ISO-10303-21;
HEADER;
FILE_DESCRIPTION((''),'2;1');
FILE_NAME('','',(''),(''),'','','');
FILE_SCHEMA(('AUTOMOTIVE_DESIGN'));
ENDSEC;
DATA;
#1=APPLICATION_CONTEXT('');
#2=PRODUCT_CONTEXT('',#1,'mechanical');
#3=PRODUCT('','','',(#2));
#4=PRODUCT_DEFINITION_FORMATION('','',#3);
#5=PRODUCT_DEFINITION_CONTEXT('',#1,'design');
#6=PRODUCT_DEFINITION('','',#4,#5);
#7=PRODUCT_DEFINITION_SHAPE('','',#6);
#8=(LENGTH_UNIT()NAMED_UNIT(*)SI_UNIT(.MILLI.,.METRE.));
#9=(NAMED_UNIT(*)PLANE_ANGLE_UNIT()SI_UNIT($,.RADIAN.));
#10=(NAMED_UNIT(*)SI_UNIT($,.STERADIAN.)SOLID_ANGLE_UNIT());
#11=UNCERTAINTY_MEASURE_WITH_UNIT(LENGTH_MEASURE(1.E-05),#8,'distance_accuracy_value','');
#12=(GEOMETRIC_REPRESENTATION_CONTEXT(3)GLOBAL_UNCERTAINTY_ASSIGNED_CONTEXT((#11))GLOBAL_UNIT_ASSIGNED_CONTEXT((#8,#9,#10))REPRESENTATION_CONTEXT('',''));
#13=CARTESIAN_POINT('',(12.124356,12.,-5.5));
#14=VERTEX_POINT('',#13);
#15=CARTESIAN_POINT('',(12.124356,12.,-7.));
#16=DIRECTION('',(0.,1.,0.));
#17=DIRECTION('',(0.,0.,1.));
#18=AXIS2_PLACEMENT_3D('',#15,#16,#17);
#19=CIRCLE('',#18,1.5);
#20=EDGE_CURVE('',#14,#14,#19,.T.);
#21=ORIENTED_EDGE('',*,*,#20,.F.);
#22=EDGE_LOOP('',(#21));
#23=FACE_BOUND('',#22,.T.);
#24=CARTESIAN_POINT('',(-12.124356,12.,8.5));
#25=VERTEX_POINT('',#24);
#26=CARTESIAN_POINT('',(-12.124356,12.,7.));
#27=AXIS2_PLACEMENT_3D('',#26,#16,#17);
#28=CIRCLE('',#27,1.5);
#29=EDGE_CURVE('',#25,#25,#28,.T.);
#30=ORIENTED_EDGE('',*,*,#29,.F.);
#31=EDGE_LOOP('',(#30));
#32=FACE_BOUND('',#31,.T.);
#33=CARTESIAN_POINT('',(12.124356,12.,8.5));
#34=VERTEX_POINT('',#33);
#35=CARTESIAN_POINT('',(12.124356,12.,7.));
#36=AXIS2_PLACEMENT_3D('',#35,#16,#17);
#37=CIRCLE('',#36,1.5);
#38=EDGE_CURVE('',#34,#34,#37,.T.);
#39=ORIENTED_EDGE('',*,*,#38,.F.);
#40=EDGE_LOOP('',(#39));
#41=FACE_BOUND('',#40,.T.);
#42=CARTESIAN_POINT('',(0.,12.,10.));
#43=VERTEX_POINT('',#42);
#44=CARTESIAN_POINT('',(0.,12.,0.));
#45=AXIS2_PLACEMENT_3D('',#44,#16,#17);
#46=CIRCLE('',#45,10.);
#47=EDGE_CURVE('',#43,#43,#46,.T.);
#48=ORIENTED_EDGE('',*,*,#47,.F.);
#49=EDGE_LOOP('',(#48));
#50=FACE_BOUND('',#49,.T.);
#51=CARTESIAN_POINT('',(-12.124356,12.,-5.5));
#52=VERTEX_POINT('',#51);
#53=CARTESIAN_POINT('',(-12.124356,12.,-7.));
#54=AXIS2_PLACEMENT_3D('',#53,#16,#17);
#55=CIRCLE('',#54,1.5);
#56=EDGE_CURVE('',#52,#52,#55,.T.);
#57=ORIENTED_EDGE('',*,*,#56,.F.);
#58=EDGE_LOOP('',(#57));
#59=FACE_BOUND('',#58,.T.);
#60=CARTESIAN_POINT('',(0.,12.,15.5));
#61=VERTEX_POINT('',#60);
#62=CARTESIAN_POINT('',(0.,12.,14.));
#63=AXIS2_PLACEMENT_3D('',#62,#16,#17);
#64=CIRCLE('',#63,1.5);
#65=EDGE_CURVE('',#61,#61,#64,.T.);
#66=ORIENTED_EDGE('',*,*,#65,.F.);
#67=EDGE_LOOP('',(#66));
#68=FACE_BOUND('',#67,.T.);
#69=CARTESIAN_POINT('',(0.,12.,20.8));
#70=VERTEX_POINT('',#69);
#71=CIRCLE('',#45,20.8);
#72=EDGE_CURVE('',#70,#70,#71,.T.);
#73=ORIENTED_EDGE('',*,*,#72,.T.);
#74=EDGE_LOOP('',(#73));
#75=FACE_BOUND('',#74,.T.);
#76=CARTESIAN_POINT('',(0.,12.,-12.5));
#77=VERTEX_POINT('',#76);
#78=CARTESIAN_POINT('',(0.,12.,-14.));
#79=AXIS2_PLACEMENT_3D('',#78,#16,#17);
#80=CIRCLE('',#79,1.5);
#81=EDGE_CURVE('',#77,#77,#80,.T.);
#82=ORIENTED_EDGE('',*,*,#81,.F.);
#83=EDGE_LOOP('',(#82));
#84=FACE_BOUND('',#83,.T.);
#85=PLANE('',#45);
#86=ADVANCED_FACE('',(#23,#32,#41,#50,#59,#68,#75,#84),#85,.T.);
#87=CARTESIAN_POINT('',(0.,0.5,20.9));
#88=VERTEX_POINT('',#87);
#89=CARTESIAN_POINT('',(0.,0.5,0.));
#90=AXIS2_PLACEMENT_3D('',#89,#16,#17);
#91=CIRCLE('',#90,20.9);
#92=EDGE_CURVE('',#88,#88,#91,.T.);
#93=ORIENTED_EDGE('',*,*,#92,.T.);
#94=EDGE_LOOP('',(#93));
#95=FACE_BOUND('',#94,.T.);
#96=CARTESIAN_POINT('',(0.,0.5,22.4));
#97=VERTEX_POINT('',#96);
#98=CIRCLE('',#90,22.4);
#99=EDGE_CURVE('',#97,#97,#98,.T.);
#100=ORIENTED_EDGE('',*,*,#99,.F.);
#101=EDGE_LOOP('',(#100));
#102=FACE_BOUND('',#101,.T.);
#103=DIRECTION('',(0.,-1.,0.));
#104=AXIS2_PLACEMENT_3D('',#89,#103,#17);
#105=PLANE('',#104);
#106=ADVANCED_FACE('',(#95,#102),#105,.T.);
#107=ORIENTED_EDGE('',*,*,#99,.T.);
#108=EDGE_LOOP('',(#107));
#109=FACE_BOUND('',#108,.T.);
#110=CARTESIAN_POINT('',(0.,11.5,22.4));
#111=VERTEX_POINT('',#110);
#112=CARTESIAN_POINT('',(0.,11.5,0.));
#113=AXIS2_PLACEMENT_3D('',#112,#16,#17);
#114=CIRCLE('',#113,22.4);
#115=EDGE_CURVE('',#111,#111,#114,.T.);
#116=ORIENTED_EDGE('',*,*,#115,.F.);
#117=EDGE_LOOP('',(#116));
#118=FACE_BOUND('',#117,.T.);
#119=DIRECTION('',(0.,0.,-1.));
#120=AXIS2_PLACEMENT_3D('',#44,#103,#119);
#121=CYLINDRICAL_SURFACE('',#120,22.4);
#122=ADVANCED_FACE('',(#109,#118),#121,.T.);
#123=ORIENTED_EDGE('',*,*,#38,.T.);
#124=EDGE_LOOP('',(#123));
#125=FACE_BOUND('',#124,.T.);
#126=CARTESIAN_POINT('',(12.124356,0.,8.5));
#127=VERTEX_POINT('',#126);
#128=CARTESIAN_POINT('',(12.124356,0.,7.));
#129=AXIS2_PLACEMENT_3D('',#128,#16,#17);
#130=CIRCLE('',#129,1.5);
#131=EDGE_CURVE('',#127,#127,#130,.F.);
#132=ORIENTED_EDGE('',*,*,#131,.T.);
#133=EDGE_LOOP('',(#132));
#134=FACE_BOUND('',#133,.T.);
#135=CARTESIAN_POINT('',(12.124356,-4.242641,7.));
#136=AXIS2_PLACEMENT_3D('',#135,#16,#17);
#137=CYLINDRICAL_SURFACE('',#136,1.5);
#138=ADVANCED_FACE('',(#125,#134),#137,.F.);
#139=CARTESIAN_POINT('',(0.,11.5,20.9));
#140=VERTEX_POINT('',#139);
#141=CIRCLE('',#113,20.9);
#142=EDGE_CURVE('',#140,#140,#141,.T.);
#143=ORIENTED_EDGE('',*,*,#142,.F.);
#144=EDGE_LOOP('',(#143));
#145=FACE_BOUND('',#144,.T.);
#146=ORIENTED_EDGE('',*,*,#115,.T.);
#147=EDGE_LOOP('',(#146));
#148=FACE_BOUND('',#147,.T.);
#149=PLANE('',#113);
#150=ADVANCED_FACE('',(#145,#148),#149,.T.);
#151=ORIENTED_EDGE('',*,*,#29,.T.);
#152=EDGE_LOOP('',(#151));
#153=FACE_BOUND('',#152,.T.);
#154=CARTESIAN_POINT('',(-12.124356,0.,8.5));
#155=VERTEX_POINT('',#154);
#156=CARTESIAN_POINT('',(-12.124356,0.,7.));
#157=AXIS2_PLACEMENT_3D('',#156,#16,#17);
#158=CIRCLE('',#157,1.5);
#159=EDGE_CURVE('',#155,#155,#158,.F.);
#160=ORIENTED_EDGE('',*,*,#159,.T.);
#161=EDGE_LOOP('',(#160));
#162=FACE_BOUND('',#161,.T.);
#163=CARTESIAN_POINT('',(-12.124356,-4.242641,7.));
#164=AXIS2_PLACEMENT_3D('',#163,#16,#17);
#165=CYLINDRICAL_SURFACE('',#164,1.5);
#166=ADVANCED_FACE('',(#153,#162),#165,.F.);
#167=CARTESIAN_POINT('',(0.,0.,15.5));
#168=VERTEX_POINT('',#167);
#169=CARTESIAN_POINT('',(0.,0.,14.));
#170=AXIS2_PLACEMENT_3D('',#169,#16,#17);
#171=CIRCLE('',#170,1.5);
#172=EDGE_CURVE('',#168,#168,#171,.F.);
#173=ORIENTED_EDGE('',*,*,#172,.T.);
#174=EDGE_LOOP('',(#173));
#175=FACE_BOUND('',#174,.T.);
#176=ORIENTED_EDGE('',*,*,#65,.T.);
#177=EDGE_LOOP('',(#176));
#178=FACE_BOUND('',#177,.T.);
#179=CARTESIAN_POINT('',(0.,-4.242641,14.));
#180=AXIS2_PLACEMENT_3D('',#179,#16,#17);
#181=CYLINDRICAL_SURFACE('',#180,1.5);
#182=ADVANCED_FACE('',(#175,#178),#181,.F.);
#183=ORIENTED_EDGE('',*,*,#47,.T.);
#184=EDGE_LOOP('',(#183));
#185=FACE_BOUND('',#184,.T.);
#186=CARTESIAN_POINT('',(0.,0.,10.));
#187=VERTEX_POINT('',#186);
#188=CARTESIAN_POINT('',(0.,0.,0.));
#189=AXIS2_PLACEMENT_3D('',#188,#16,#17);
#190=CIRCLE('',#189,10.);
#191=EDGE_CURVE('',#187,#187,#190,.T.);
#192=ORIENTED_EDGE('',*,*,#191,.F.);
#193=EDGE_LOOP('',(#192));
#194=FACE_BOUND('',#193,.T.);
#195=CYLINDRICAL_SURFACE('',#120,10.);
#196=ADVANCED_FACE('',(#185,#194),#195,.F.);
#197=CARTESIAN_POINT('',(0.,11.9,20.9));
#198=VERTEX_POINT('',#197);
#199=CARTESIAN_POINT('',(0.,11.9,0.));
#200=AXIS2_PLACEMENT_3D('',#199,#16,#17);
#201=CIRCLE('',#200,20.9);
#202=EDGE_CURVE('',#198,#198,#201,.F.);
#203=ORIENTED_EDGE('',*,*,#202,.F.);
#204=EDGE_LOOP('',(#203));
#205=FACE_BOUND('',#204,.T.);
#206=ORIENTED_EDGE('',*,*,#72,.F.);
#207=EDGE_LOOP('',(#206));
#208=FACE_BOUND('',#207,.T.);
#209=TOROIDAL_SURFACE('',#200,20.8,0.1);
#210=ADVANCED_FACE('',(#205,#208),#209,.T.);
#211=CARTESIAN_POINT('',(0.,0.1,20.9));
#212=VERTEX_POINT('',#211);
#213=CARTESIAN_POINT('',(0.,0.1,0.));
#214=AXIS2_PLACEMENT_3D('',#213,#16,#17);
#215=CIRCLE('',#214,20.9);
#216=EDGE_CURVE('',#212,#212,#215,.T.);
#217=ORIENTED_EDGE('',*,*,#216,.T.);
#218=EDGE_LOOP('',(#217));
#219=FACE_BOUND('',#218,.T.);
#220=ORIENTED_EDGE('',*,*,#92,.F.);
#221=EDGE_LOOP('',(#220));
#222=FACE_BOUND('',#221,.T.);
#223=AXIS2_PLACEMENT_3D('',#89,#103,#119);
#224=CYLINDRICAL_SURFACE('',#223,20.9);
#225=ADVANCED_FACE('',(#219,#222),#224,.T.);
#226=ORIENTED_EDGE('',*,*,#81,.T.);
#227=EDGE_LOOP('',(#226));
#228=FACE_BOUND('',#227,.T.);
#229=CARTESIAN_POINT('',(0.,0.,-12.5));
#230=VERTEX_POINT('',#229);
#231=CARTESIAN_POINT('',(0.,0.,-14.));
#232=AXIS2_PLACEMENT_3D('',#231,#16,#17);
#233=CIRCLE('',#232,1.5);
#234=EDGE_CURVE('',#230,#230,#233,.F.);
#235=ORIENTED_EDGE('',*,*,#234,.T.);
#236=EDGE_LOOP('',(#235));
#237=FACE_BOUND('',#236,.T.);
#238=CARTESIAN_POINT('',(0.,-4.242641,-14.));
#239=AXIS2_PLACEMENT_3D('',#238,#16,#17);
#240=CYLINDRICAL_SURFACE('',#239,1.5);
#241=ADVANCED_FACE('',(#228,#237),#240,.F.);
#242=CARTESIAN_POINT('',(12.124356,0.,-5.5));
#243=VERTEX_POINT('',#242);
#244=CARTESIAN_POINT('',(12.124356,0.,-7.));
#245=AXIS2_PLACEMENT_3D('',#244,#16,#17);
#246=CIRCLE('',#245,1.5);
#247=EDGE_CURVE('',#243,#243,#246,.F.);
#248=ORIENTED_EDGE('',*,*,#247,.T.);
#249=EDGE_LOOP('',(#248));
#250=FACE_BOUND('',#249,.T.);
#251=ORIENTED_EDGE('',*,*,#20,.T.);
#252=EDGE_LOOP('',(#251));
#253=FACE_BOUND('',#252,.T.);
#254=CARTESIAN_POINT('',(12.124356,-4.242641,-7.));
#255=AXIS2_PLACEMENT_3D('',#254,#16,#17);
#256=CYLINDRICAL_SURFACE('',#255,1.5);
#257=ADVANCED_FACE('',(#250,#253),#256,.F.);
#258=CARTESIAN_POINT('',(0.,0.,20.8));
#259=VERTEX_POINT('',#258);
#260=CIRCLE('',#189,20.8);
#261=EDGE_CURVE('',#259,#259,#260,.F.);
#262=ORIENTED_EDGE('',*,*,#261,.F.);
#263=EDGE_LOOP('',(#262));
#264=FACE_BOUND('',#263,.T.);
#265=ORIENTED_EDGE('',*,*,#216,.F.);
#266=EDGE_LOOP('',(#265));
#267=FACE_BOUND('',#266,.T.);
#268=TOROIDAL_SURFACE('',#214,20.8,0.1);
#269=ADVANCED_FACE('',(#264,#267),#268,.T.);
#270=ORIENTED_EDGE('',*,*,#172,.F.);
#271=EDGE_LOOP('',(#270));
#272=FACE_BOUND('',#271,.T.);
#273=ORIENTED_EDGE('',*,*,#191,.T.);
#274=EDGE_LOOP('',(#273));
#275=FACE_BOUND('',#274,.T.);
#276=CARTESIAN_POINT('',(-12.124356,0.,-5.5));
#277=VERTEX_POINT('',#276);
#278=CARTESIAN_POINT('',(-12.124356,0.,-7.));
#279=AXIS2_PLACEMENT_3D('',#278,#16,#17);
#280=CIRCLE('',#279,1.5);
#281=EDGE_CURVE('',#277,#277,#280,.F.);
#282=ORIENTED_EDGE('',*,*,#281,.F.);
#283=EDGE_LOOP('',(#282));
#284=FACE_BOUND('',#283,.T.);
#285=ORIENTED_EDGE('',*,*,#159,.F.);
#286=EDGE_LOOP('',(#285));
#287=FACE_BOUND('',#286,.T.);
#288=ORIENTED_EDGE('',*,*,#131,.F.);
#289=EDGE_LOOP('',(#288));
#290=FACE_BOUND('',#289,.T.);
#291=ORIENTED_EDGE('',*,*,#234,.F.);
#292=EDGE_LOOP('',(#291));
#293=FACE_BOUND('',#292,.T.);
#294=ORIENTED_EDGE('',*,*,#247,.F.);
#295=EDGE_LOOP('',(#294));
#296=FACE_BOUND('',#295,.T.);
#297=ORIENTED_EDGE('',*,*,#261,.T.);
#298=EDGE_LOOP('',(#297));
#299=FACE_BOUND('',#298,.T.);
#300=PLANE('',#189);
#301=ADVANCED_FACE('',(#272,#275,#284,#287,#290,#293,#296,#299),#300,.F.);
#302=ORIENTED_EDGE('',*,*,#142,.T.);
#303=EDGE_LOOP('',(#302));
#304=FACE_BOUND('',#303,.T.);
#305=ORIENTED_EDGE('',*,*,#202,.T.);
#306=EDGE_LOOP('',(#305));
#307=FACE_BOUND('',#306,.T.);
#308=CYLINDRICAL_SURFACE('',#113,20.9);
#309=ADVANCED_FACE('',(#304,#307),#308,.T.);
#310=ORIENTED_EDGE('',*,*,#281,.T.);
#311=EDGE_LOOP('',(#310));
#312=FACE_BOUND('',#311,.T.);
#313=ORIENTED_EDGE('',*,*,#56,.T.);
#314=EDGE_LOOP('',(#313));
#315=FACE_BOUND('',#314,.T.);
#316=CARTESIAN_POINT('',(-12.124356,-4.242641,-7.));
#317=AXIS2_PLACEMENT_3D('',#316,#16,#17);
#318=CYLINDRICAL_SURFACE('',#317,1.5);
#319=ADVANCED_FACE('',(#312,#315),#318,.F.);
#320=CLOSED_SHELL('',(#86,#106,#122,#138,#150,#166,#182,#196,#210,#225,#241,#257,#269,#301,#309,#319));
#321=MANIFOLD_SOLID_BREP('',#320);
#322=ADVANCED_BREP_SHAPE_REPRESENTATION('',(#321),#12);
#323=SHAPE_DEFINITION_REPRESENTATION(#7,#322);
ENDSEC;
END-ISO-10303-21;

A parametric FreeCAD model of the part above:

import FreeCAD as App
import Part
import Sketcher
from FreeCAD import Vector
Q = App.Units.Quantity


def edges_at(feature, points):
    """Names of the edges that pass closest to the given points."""
    edges = feature.Shape.Edges
    near = lambda p: min(range(len(edges)), key=lambda i: edges[i].distToShape(Part.Vertex(*p))[0])
    return sorted({f"Edge{near(p) + 1}" for p in points})

doc = App.newDocument("Part")
body = doc.addObject("PartDesign::Body", "Body")

# Sketch on XZ plane
sketch1 = body.newObject("Sketcher::SketchObject", "Sketch")
sketch1.AttachmentSupport = (doc.getObject("XZ_Plane"), [""])
sketch1.MapMode = "FlatFace"
sketch1.addGeometry([
    Part.Circle(Vector(0, 0, 0), Vector(0, 0, 1), 22),
    Part.Circle(Vector(0, 0, 0), Vector(0, 0, 1), 10),
], False)
sketch1.addConstraint([
    Sketcher.Constraint("Coincident", 0, 3, -1, 1),
    Sketcher.Constraint("Coincident", 1, 3, -1, 1),
    Sketcher.Constraint("Diameter", 1, Q("20 mm")),
    Sketcher.Constraint("Diameter", 0, Q("44.8 mm")),
])
pad1 = body.newObject("PartDesign::Pad", "Pad")
pad1.Profile = sketch1
pad1.Length = 12
pad1.Reversed = True

# Sketch on XZ plane
sketch2 = body.newObject("Sketcher::SketchObject", "Sketch001")
sketch2.AttachmentSupport = (doc.getObject("XZ_Plane"), [""])
sketch2.MapMode = "FlatFace"
sketch2.AttachmentOffset = App.Placement(Vector(0, 0, -11.5), App.Rotation())
sketch2.addGeometry([
    Part.Circle(Vector(0, 0, 0), Vector(0, 0, 1), 22),
    Part.Circle(Vector(0, 0, 0), Vector(0, 0, 1), 21),
], False)
sketch2.addConstraint([
    Sketcher.Constraint("Coincident", 0, 3, -1, 1),
    Sketcher.Constraint("Coincident", 1, 3, -1, 1),
    Sketcher.Constraint("Diameter", 0, Q("44.8 mm")),
    Sketcher.Constraint("Diameter", 1, Q("41.8 mm")),
])
pocket1 = body.newObject("PartDesign::Pocket", "Pocket")
pocket1.Profile = sketch2
pocket1.Length = 0.5
doc.recompute()

fillet = body.newObject("PartDesign::Fillet", "Fillet")
fillet.Base = (pocket1, edges_at(pocket1, [(0, 12, -20.9)]))
fillet.Radius = 0.1
doc.recompute()

datumplane = body.newObject("PartDesign::Plane", "DatumPlane")
datumplane.AttachmentSupport = (doc.getObject("XZ_Plane"), [""])
datumplane.MapMode = "FlatFace"
datumplane.AttachmentOffset = App.Placement(Vector(0, 0, -6), App.Rotation())
mirrored = body.newObject("PartDesign::Mirrored", "Mirrored")
mirrored.Originals = [pocket1]
mirrored.MirrorPlane = (datumplane, [""])
body.Tip = mirrored
doc.recompute()

fillet2 = body.newObject("PartDesign::Fillet", "Fillet001")
fillet2.Base = (mirrored, edges_at(mirrored, [(0, 0, -20.9)]))
fillet2.Radius = 0.1

# Sketch on XZ plane
sketch3 = body.newObject("Sketcher::SketchObject", "Sketch002")
sketch3.AttachmentSupport = (doc.getObject("XZ_Plane"), [""])
sketch3.MapMode = "FlatFace"
sketch3.AttachmentOffset = App.Placement(Vector(0, 0, -12), App.Rotation())
sketch3.addGeometry([
    Part.Circle(Vector(0, -14, 0), Vector(0, 0, 1), 1.5),  # 0
    Part.Circle(Vector(12.1, -7, 0), Vector(0, 0, 1), 1.5),  # 1
    Part.Circle(Vector(12.1, 7, 0), Vector(0, 0, 1), 1.5),  # 2
    Part.Circle(Vector(0, 14, 0), Vector(0, 0, 1), 1.5),  # 3
    Part.Circle(Vector(-12.1, 7, 0), Vector(0, 0, 1), 1.5),  # 4
    Part.Circle(Vector(-12.1, -7, 0), Vector(0, 0, 1), 1.5),  # 5
], False)
sketch3.addConstraint([
    Sketcher.Constraint("Equal", 0, 1),
    Sketcher.Constraint("Equal", 1, 2),
    Sketcher.Constraint("Equal", 2, 3),
    Sketcher.Constraint("Equal", 3, 4),
    Sketcher.Constraint("Equal", 4, 5),
    Sketcher.Constraint("Symmetric", 0, 3, 3, 3, -1, 1),
    Sketcher.Constraint("Symmetric", 1, 3, 4, 3, -1, 1),
    Sketcher.Constraint("Symmetric", 2, 3, 5, 3, -1, 1),
    Sketcher.Constraint("Symmetric", 2, 3, 4, 3, -2),
    Sketcher.Constraint("PointOnObject", 0, 3, -2),
    Sketcher.Constraint("Diameter", 0, Q("3 mm")),
    Sketcher.Constraint("DistanceY", 0, 3, -1, 1, Q("14 mm")),
    Sketcher.Constraint("DistanceY", 1, 3, -1, 1, Q("7 mm")),
    Sketcher.Constraint("DistanceX", 4, 3, 2, 3, Q("24.248711 mm")),
])
pocket2 = body.newObject("PartDesign::Pocket", "Pocket001")
pocket2.Profile = sketch3
pocket2.Length = 12
pocket2.Reversed = True

doc.recompute()
